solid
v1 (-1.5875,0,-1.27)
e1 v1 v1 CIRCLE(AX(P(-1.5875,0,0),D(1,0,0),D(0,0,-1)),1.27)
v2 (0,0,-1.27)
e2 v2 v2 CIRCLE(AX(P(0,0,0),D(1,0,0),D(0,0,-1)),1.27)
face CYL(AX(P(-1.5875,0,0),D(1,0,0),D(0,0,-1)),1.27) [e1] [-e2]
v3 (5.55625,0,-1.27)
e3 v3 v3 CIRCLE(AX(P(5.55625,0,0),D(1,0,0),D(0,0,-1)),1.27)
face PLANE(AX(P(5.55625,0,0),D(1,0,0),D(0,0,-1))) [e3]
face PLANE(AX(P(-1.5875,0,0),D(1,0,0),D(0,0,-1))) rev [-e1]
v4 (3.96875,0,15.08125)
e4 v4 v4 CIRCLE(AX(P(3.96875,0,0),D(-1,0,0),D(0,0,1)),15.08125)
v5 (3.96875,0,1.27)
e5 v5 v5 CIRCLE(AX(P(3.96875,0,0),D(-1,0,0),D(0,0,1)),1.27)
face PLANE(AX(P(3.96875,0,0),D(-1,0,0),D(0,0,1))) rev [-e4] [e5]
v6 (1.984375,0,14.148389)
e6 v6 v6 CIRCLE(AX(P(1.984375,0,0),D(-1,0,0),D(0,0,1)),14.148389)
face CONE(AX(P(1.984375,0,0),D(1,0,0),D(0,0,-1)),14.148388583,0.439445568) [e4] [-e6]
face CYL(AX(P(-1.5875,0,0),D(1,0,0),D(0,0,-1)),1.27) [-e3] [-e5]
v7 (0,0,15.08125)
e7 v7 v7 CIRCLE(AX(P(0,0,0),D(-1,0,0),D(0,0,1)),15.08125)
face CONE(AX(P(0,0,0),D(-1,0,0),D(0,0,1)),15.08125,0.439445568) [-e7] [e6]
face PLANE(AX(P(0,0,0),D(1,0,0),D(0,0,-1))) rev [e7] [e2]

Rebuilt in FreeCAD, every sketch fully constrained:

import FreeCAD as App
import Part
import Sketcher
Q = App.Units.Quantity


def add_polygon(sketch, points):
    """Adds a closed chain of lines whose ends are joined by coincident constraints."""
    first, n = sketch.GeometryCount, len(points)
    for a, b in zip(points, points[1:] + points[:1]):
        sketch.addGeometry(Part.LineSegment(App.Vector(*a, 0), App.Vector(*b, 0)), False)
    for i in range(n):
        sketch.addConstraint(Sketcher.Constraint("Coincident", first + i, 2, first + (i + 1) % n, 1))

doc = App.newDocument("Part")
params = doc.addObject("Spreadsheet::Sheet", "Params")
for row, (alias, value) in enumerate([
    ("sketch1_width", "0.15625 in"),
    ("sketch1_height", "0.59375 in"),
    ("revolution_angle", "360 deg"),
    ("sketch2_diameter", "0.1 in"),
    ("pad1_length", "0.0625 in"),
    ("pad1_length2", "0.21875 in"),
], start=1):
    params.set(f"A{row}", alias)
    params.set(f"B{row}", "=" + value)
    params.setAlias(f"B{row}", alias)

body = doc.addObject("PartDesign::Body", "Body")

sketch1 = doc.addObject("Sketcher::SketchObject", "Sketch")
body.addObject(sketch1)
sketch1.AttachmentSupport = (doc.XZ_Plane, [""])
sketch1.MapMode = "FlatFace"
add_polygon(sketch1, [(0, 0), (4, 0), (4, -15.1), (2, -14.1), (0, -15.1)])
sketch1.addConstraint(Sketcher.Constraint("Horizontal", 0))
sketch1.addConstraint(Sketcher.Constraint("Vertical", 1))
sketch1.addConstraint(Sketcher.Constraint("Vertical", 4))
sketch1.addConstraint(Sketcher.Constraint("Coincident", 4, 2, -1, 1))
sketch1.addConstraint(Sketcher.Constraint("Horizontal", 1, 2, 3, 2))
sketch1.addConstraint(Sketcher.Constraint("Equal", 2, 3))
sketch1.addConstraint(Sketcher.Constraint("DistanceX", 0, 1, 0, 2, Q("0.15625 in")))
sketch1.addConstraint(Sketcher.Constraint("DistanceY", 1, 2, 1, 1, Q("0.59375 in")))
sketch1.addConstraint(Sketcher.Constraint("Distance", 2, 2.192709))
sketch1.setExpression("Constraints[11]", "Params.sketch1_width")
sketch1.setExpression("Constraints[12]", "Params.sketch1_height")
revolution = doc.addObject("PartDesign::Revolution", "Revolution")
body.addObject(revolution)
revolution.Profile = sketch1
revolution.ReferenceAxis = (sketch1, ["H_Axis"])
revolution.setExpression("Angle", "Params.revolution_angle")

sketch2 = doc.addObject("Sketcher::SketchObject", "Sketch001")
body.addObject(sketch2)
sketch2.AttachmentSupport = (doc.YZ_Plane, [""])
sketch2.MapMode = "FlatFace"
sketch2.AttachmentOffset = App.Placement(App.Vector(0, 0, 0.15625 * 25.4), App.Rotation())
sketch2.addGeometry(Part.Circle(App.Vector(0, 0, 0), App.Vector(0, 0, 1), 1.3), False)
sketch2.addConstraint(Sketcher.Constraint("Coincident", 0, 3, -1, 1))
sketch2.addConstraint(Sketcher.Constraint("Diameter", 0, Q("0.1 in")))
sketch2.setExpression("Constraints[1]", "Params.sketch2_diameter")
pad1 = doc.addObject("PartDesign::Pad", "Pad")
body.addObject(pad1)
pad1.Profile = sketch2
pad1.Type = "TwoLengths"
pad1.setExpression("Length", "Params.pad1_length")
pad1.setExpression("Length2", "Params.pad1_length2")

doc.recompute()
